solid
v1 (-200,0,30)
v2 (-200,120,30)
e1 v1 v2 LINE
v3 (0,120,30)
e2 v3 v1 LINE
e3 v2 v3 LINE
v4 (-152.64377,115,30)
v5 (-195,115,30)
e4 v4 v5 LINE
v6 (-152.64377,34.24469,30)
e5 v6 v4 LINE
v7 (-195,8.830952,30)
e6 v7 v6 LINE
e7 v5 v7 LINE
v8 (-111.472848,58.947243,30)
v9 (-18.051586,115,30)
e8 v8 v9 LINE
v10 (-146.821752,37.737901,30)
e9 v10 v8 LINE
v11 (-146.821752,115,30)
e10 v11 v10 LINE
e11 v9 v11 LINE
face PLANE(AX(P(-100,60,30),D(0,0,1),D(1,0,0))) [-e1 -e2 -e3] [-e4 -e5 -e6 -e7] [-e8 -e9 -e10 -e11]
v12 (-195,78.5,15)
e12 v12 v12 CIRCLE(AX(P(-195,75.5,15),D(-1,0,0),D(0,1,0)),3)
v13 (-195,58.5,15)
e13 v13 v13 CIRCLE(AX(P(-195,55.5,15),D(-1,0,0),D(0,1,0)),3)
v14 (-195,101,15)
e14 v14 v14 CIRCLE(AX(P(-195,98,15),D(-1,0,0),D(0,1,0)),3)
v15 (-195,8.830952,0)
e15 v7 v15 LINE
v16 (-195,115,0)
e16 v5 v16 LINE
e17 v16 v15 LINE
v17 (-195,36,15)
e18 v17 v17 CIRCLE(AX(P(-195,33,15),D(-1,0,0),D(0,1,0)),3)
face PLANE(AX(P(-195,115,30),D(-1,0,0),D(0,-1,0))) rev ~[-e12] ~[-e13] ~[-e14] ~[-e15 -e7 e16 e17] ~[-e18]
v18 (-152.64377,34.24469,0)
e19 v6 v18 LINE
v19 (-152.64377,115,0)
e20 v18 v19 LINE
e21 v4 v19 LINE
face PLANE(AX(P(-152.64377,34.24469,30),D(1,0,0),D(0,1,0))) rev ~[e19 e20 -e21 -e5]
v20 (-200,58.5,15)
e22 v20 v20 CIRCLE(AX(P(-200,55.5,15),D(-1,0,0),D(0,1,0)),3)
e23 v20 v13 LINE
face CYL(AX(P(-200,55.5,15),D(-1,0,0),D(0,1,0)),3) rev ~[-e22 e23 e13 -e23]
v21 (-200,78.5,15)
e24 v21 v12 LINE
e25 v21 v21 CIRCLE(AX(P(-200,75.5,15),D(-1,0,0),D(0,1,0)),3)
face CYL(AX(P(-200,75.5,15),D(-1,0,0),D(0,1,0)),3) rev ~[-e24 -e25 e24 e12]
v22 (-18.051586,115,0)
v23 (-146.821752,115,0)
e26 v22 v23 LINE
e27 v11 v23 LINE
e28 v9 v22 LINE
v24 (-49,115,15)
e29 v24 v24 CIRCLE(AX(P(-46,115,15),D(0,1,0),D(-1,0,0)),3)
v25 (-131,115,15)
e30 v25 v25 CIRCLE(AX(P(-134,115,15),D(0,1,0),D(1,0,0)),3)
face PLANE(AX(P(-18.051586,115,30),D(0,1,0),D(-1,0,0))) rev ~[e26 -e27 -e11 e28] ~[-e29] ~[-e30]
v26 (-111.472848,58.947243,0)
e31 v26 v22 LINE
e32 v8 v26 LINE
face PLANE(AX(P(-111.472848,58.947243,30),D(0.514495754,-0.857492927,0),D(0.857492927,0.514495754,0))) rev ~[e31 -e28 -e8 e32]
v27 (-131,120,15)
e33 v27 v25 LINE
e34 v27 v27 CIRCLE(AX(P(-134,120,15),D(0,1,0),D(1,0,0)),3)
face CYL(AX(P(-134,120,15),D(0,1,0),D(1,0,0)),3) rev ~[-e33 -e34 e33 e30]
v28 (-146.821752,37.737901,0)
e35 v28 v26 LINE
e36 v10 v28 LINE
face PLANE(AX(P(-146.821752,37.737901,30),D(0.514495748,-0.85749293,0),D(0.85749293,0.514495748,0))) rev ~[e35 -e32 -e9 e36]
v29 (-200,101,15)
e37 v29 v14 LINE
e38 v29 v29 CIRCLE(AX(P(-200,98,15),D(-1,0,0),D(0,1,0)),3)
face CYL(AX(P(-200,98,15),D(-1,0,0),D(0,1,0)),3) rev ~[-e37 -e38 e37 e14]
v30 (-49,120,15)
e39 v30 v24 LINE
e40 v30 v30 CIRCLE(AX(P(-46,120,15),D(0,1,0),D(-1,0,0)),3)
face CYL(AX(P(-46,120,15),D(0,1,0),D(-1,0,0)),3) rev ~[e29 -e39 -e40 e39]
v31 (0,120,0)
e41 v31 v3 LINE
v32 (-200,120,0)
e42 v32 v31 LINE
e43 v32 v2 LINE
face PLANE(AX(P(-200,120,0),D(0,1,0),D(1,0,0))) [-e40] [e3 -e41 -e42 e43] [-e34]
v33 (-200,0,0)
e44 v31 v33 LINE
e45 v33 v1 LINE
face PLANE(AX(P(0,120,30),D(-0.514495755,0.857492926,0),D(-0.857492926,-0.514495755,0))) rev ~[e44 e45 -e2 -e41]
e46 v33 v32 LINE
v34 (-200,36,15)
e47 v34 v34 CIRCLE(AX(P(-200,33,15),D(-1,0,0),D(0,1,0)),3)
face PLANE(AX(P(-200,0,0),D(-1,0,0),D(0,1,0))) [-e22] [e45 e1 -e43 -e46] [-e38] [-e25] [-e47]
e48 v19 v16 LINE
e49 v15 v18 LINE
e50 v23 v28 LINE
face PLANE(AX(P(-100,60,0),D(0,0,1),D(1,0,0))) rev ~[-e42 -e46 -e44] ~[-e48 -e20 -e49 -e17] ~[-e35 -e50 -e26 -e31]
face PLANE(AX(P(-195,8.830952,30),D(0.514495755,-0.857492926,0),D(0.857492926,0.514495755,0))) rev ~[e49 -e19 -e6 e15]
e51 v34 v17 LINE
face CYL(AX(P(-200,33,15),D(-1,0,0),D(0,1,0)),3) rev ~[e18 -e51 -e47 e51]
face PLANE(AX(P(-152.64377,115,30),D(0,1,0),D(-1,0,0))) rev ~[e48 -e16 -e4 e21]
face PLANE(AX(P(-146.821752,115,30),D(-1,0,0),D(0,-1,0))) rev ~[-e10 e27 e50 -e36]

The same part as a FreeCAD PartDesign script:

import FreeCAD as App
import Part
import Sketcher
from FreeCAD import Vector
Q = App.Units.Quantity

doc = App.newDocument("Part")
body = doc.addObject("PartDesign::Body", "Body")

# Sketch on XY plane
sketch1 = doc.addObject("Sketcher::SketchObject", "Sketch")
body.addObject(sketch1)
sketch1.AttachmentSupport = (doc.XY_Plane, [""])
sketch1.MapMode = "FlatFace"
sketch1.addGeometry([
    Part.LineSegment(Vector(-200, 120, 0), Vector(-200, 0, 0)),
    Part.LineSegment(Vector(-200, 0, 0), Vector(0, 0, 0)),
    Part.LineSegment(Vector(0, 0, 0), Vector(0, 120, 0)),
    Part.LineSegment(Vector(0, 120, 0), Vector(-200, 120, 0)),
], False)
sketch1.addConstraint([
    Sketcher.Constraint("Coincident", 0, 2, 1, 1),
    Sketcher.Constraint("Coincident", 1, 2, 2, 1),
    Sketcher.Constraint("Coincident", 2, 2, 3, 1),
    Sketcher.Constraint("Coincident", 3, 2, 0, 1),
    Sketcher.Constraint("Vertical", 0),
    Sketcher.Constraint("Horizontal", 1),
    Sketcher.Constraint("Vertical", 2),
    Sketcher.Constraint("Horizontal", 3),
    Sketcher.Constraint("Coincident", 1, 2, -1, 1),
    Sketcher.Constraint("DistanceX", 1, 1, 1, 2, Q("200 mm")),
    Sketcher.Constraint("DistanceY", 0, 2, 0, 1, Q("120 mm")),
])
pad1 = doc.addObject("PartDesign::Pad", "Pad")
body.addObject(pad1)
pad1.Profile = sketch1
pad1.Length = 30

# Sketch on XY plane
sketch2 = doc.addObject("Sketcher::SketchObject", "Sketch001")
body.addObject(sketch2)
sketch2.AttachmentSupport = (doc.XY_Plane, [""])
sketch2.MapMode = "FlatFace"
sketch2.AttachmentOffset = App.Placement(Vector(0, 0, 30), App.Rotation())
sketch2.addGeometry([
    Part.LineSegment(Vector(0, 120, 0), Vector(-200, 0, 0)),
    Part.LineSegment(Vector(-200, 0, 0), Vector(0, 0, 0)),
    Part.LineSegment(Vector(0, 0, 0), Vector(0, 120, 0)),
], False)
sketch2.addConstraint([
    Sketcher.Constraint("Coincident", 0, 2, 1, 1),
    Sketcher.Constraint("Coincident", 1, 2, 2, 1),
    Sketcher.Constraint("Coincident", 2, 2, 0, 1),
    Sketcher.Constraint("Horizontal", 1),
    Sketcher.Constraint("Vertical", 2),
    Sketcher.Constraint("Coincident", 1, 2, -1, 1),
    Sketcher.Constraint("DistanceX", 1, 1, 1, 2, Q("200 mm")),
    Sketcher.Constraint("DistanceY", 2, 1, 2, 2, Q("120 mm")),
])
pocket1 = doc.addObject("PartDesign::Pocket", "Pocket")
body.addObject(pocket1)
pocket1.Profile = sketch2
pocket1.Length = 30

# Sketch on XY plane
sketch3 = doc.addObject("Sketcher::SketchObject", "Sketch002")
body.addObject(sketch3)
sketch3.AttachmentSupport = (doc.XY_Plane, [""])
sketch3.MapMode = "FlatFace"
sketch3.AttachmentOffset = App.Placement(Vector(0, 0, 30), App.Rotation())
sketch3.addGeometry([
    Part.LineSegment(Vector(-195, 9, 0), Vector(-153, 34, 0)),  # 0
    Part.LineSegment(Vector(-153, 34, 0), Vector(-153, 115, 0)),  # 1
    Part.LineSegment(Vector(-153, 115, 0), Vector(-195, 115, 0)),  # 2
    Part.LineSegment(Vector(-195, 115, 0), Vector(-195, 9, 0)),  # 3
    Part.LineSegment(Vector(-147, 115, 0), Vector(-147, 38, 0)),  # 4
    Part.LineSegment(Vector(-147, 38, 0), Vector(-111, 59, 0)),  # 5
    Part.LineSegment(Vector(-111, 59, 0), Vector(-18, 115, 0)),  # 6
    Part.LineSegment(Vector(-18, 115, 0), Vector(-147, 115, 0)),  # 7
], False)
sketch3.addConstraint([
    Sketcher.Constraint("Coincident", 0, 2, 1, 1),
    Sketcher.Constraint("Coincident", 1, 2, 2, 1),
    Sketcher.Constraint("Coincident", 2, 2, 3, 1),
    Sketcher.Constraint("Coincident", 3, 2, 0, 1),
    Sketcher.Constraint("Coincident", 4, 2, 5, 1),
    Sketcher.Constraint("Coincident", 5, 2, 6, 1),
    Sketcher.Constraint("Coincident", 6, 2, 7, 1),
    Sketcher.Constraint("Coincident", 7, 2, 4, 1),
    Sketcher.Constraint("Vertical", 1),
    Sketcher.Constraint("Horizontal", 2),
    Sketcher.Constraint("Vertical", 3),
    Sketcher.Constraint("Vertical", 4),
    Sketcher.Constraint("Horizontal", 7),
    Sketcher.Constraint("Parallel", 0, 5),
    Sketcher.Constraint("Parallel", 5, 6),
    Sketcher.Constraint("Horizontal", 2, 2, 6, 2),
    Sketcher.Constraint("DistanceY", -1, 1, 1, 2, Q("115 mm")),
    Sketcher.Constraint("DistanceX", 2, 2, -1, 1, Q("195 mm")),
    Sketcher.Constraint("DistanceY", 4, 2, 4, 1, Q("77.262099 mm")),
    Sketcher.Constraint("DistanceX", 2, 2, 2, 1, Q("42.35623 mm")),
    Sketcher.Constraint("DistanceY", 1, 1, 1, 2, Q("80.75531 mm")),
    Sketcher.Constraint("DistanceY", 3, 2, 3, 1, Q("106.169048 mm")),
    Sketcher.Constraint("Distance", 5, Q("41.223552 mm")),
    Sketcher.Constraint("DistanceX", 4, 2, -1, 1, Q("146.821752 mm")),
])
pocket2 = doc.addObject("PartDesign::Pocket", "Pocket001")
body.addObject(pocket2)
pocket2.Profile = sketch3
pocket2.Length = 30

# Sketch on XZ plane
sketch4 = doc.addObject("Sketcher::SketchObject", "Sketch003")
body.addObject(sketch4)
sketch4.AttachmentSupport = (doc.XZ_Plane, [""])
sketch4.MapMode = "FlatFace"
sketch4.AttachmentOffset = App.Placement(Vector(0, 0, -120), App.Rotation())
sketch4.addGeometry([
    Part.Circle(Vector(-134, 15, 0), Vector(0, 0, 1), 3),
    Part.Circle(Vector(-46, 15, 0), Vector(0, 0, 1), 3),
], False)
sketch4.addConstraint([
    Sketcher.Constraint("Equal", 0, 1),
    Sketcher.Constraint("Horizontal", 0, 3, 1, 3),
    Sketcher.Constraint("Diameter", 0, Q("6 mm")),
    Sketcher.Constraint("DistanceX", 0, 3, -1, 1, Q("134 mm")),
    Sketcher.Constraint("DistanceY", -1, 1, 0, 3, Q("15 mm")),
    Sketcher.Constraint("DistanceX", 1, 3, -1, 1, Q("46 mm")),
])
pocket3 = doc.addObject("PartDesign::Pocket", "Pocket002")
body.addObject(pocket3)
pocket3.Profile = sketch4
pocket3.Length = 6
pocket3.Reversed = True

# Sketch on YZ plane
sketch5 = doc.addObject("Sketcher::SketchObject", "Sketch004")
body.addObject(sketch5)
sketch5.AttachmentSupport = (doc.YZ_Plane, [""])
sketch5.MapMode = "FlatFace"
sketch5.AttachmentOffset = App.Placement(Vector(0, 0, -200), App.Rotation())
sketch5.addGeometry([
    Part.Circle(Vector(33, 15, 0), Vector(0, 0, 1), 3),
    Part.Circle(Vector(55.5, 15, 0), Vector(0, 0, 1), 3),
    Part.Circle(Vector(75.5, 15, 0), Vector(0, 0, 1), 3),
    Part.Circle(Vector(98, 15, 0), Vector(0, 0, 1), 3),
], False)
sketch5.addConstraint([
    Sketcher.Constraint("Equal", 0, 1),
    Sketcher.Constraint("Equal", 1, 2),
    Sketcher.Constraint("Equal", 2, 3),
    Sketcher.Constraint("Horizontal", 0, 3, 1, 3),
    Sketcher.Constraint("Horizontal", 1, 3, 2, 3),
    Sketcher.Constraint("Horizontal", 2, 3, 3, 3),
    Sketcher.Constraint("Diameter", 0, Q("6 mm")),
    Sketcher.Constraint("DistanceX", -1, 1, 0, 3, Q("33 mm")),
    Sketcher.Constraint("DistanceY", -1, 1, 0, 3, Q("15 mm")),
    Sketcher.Constraint("DistanceX", -1, 1, 3, 3, Q("98 mm")),
    Sketcher.Constraint("DistanceX", 1, 3, 2, 3, Q("20 mm")),
    Sketcher.Constraint("DistanceX", -1, 1, 1, 3, Q("55.5 mm")),
])
pocket4 = doc.addObject("PartDesign::Pocket", "Pocket003")
body.addObject(pocket4)
pocket4.Profile = sketch5
pocket4.Length = 6
pocket4.Reversed = True

doc.recompute()
